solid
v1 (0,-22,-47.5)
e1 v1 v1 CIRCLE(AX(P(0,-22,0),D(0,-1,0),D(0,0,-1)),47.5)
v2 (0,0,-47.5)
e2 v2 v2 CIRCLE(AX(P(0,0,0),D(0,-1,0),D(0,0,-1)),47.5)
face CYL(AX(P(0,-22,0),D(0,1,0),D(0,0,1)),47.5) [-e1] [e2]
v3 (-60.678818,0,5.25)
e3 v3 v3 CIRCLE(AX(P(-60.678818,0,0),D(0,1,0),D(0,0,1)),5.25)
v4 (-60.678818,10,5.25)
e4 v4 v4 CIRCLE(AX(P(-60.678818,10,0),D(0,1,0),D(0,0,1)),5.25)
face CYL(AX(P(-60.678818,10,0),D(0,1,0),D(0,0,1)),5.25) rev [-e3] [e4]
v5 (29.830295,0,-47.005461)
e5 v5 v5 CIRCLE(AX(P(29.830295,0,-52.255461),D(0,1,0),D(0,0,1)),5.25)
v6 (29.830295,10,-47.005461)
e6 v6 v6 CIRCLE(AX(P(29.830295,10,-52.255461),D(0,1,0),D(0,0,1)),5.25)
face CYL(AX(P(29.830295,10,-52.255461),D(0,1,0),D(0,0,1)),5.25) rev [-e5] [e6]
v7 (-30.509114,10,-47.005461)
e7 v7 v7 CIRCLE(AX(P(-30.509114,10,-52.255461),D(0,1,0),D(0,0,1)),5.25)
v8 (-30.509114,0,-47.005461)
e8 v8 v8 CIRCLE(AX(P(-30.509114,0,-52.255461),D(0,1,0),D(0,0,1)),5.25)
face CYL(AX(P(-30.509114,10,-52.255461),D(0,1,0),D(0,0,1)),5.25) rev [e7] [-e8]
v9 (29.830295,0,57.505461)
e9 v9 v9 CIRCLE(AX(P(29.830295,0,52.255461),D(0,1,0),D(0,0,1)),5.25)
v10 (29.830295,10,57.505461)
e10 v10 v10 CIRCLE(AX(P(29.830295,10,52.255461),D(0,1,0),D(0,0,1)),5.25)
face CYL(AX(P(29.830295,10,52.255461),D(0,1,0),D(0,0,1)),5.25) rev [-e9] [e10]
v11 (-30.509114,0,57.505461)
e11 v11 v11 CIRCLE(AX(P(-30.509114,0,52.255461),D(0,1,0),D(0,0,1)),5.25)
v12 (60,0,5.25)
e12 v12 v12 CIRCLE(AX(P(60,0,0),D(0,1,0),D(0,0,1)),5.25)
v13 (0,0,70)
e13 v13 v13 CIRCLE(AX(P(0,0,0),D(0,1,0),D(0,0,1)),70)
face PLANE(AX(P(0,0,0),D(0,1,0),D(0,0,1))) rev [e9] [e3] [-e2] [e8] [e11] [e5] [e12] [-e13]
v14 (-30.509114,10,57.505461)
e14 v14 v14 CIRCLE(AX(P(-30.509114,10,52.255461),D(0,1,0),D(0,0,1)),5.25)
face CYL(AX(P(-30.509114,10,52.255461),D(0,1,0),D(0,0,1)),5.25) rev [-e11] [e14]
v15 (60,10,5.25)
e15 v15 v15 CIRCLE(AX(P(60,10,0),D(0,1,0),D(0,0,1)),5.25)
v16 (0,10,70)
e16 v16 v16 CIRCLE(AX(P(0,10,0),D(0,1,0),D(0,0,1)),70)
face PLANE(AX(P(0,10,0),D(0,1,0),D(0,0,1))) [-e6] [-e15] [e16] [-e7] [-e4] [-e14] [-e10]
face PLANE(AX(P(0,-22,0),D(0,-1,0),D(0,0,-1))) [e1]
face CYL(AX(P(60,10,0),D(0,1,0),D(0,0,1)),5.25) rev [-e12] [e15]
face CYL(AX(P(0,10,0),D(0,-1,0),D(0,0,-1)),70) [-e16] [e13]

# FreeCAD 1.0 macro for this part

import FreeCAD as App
import Part
import Sketcher
Q = App.Units.Quantity

doc = App.newDocument("Part")
body = doc.addObject("PartDesign::Body", "Body")

# Sketch on XZ plane
sketch1 = body.newObject("Sketcher::SketchObject", "Sketch")
sketch1.AttachmentSupport = (doc.getObject("XZ_Plane"), [""])
sketch1.MapMode = "FlatFace"
sketch1.addGeometry(Part.Circle(App.Vector(0, 0, 0), App.Vector(0, 0, 1), 70), False)
sketch1.addConstraint(Sketcher.Constraint("Coincident", 0, 3, -1, 1))
sketch1.addConstraint(Sketcher.Constraint("Diameter", 0, Q("140 mm")))
pad1 = body.newObject("PartDesign::Pad", "Pad")
pad1.Profile = sketch1
pad1.Length = 10
pad1.Reversed = True

# Sketch on XZ plane
sketch2 = body.newObject("Sketcher::SketchObject", "Sketch001")
sketch2.AttachmentSupport = (doc.getObject("XZ_Plane"), [""])
sketch2.MapMode = "FlatFace"
sketch2.addGeometry(Part.Circle(App.Vector(0, 0, 0), App.Vector(0, 0, 1), 48), False)
sketch2.addConstraint(Sketcher.Constraint("Coincident", 0, 3, -1, 1))
sketch2.addConstraint(Sketcher.Constraint("Diameter", 0, Q("95 mm")))
pad2 = body.newObject("PartDesign::Pad", "Pad001")
pad2.Profile = sketch2
pad2.Length = 22

# Sketch on YZ plane
sketch3 = body.newObject("Sketcher::SketchObject", "Sketch002")
sketch3.AttachmentSupport = (doc.getObject("YZ_Plane"), [""])
sketch3.MapMode = "FlatFace"
sketch3.AttachmentOffset = App.Placement(App.Vector(0, 0, 60), App.Rotation())
sketch3.addGeometry(Part.LineSegment(App.Vector(-25, 0, 0), App.Vector(10, 0, 0)), False)
sketch3.addGeometry(Part.LineSegment(App.Vector(10, 0, 0), App.Vector(10, 5, 0)), False)
sketch3.addGeometry(Part.LineSegment(App.Vector(10, 5, 0), App.Vector(-22, 5, 0)), False)
sketch3.addGeometry(Part.LineSegment(App.Vector(-22, 5, 0), App.Vector(-25, 0, 0)), False)
sketch3.addConstraint(Sketcher.Constraint("Coincident", 0, 2, 1, 1))
sketch3.addConstraint(Sketcher.Constraint("Coincident", 1, 2, 2, 1))
sketch3.addConstraint(Sketcher.Constraint("Coincident", 2, 2, 3, 1))
sketch3.addConstraint(Sketcher.Constraint("Coincident", 3, 2, 0, 1))
sketch3.addConstraint(Sketcher.Constraint("Horizontal", 0))
sketch3.addConstraint(Sketcher.Constraint("Vertical", 1))
sketch3.addConstraint(Sketcher.Constraint("Horizontal", 2))
sketch3.addConstraint(Sketcher.Constraint("PointOnObject", 0, 2, -1))
sketch3.addConstraint(Sketcher.Constraint("Angle", 3, Q("-121 deg")))
sketch3.addConstraint(Sketcher.Constraint("DistanceX", 2, 2, 2, 1, Q("31.5 mm")))
sketch3.addConstraint(Sketcher.Constraint("DistanceX", -1, 1, 0, 2, Q("10 mm")))
sketch3.addConstraint(Sketcher.Constraint("DistanceY", 1, 1, 1, 2, Q("5.25 mm")))
groove = body.newObject("PartDesign::Groove", "Groove")
groove.Profile = sketch3
groove.ReferenceAxis = (sketch3, ["H_Axis"])
groove.Angle = 360
doc.recompute()

datumline = body.newObject("PartDesign::Line", "DatumLine")
datumline.Placement = App.Placement(App.Vector(-0.339409, 0, 0), App.Rotation(App.Vector(0, 0, 1), App.Vector(0, 1, 0)))
polarpattern = body.newObject("PartDesign::PolarPattern", "PolarPattern")
polarpattern.Originals = [groove]
polarpattern.Axis = (datumline, [""])
polarpattern.Angle = 360
polarpattern.Occurrences = 6
body.Tip = polarpattern

doc.recompute()
